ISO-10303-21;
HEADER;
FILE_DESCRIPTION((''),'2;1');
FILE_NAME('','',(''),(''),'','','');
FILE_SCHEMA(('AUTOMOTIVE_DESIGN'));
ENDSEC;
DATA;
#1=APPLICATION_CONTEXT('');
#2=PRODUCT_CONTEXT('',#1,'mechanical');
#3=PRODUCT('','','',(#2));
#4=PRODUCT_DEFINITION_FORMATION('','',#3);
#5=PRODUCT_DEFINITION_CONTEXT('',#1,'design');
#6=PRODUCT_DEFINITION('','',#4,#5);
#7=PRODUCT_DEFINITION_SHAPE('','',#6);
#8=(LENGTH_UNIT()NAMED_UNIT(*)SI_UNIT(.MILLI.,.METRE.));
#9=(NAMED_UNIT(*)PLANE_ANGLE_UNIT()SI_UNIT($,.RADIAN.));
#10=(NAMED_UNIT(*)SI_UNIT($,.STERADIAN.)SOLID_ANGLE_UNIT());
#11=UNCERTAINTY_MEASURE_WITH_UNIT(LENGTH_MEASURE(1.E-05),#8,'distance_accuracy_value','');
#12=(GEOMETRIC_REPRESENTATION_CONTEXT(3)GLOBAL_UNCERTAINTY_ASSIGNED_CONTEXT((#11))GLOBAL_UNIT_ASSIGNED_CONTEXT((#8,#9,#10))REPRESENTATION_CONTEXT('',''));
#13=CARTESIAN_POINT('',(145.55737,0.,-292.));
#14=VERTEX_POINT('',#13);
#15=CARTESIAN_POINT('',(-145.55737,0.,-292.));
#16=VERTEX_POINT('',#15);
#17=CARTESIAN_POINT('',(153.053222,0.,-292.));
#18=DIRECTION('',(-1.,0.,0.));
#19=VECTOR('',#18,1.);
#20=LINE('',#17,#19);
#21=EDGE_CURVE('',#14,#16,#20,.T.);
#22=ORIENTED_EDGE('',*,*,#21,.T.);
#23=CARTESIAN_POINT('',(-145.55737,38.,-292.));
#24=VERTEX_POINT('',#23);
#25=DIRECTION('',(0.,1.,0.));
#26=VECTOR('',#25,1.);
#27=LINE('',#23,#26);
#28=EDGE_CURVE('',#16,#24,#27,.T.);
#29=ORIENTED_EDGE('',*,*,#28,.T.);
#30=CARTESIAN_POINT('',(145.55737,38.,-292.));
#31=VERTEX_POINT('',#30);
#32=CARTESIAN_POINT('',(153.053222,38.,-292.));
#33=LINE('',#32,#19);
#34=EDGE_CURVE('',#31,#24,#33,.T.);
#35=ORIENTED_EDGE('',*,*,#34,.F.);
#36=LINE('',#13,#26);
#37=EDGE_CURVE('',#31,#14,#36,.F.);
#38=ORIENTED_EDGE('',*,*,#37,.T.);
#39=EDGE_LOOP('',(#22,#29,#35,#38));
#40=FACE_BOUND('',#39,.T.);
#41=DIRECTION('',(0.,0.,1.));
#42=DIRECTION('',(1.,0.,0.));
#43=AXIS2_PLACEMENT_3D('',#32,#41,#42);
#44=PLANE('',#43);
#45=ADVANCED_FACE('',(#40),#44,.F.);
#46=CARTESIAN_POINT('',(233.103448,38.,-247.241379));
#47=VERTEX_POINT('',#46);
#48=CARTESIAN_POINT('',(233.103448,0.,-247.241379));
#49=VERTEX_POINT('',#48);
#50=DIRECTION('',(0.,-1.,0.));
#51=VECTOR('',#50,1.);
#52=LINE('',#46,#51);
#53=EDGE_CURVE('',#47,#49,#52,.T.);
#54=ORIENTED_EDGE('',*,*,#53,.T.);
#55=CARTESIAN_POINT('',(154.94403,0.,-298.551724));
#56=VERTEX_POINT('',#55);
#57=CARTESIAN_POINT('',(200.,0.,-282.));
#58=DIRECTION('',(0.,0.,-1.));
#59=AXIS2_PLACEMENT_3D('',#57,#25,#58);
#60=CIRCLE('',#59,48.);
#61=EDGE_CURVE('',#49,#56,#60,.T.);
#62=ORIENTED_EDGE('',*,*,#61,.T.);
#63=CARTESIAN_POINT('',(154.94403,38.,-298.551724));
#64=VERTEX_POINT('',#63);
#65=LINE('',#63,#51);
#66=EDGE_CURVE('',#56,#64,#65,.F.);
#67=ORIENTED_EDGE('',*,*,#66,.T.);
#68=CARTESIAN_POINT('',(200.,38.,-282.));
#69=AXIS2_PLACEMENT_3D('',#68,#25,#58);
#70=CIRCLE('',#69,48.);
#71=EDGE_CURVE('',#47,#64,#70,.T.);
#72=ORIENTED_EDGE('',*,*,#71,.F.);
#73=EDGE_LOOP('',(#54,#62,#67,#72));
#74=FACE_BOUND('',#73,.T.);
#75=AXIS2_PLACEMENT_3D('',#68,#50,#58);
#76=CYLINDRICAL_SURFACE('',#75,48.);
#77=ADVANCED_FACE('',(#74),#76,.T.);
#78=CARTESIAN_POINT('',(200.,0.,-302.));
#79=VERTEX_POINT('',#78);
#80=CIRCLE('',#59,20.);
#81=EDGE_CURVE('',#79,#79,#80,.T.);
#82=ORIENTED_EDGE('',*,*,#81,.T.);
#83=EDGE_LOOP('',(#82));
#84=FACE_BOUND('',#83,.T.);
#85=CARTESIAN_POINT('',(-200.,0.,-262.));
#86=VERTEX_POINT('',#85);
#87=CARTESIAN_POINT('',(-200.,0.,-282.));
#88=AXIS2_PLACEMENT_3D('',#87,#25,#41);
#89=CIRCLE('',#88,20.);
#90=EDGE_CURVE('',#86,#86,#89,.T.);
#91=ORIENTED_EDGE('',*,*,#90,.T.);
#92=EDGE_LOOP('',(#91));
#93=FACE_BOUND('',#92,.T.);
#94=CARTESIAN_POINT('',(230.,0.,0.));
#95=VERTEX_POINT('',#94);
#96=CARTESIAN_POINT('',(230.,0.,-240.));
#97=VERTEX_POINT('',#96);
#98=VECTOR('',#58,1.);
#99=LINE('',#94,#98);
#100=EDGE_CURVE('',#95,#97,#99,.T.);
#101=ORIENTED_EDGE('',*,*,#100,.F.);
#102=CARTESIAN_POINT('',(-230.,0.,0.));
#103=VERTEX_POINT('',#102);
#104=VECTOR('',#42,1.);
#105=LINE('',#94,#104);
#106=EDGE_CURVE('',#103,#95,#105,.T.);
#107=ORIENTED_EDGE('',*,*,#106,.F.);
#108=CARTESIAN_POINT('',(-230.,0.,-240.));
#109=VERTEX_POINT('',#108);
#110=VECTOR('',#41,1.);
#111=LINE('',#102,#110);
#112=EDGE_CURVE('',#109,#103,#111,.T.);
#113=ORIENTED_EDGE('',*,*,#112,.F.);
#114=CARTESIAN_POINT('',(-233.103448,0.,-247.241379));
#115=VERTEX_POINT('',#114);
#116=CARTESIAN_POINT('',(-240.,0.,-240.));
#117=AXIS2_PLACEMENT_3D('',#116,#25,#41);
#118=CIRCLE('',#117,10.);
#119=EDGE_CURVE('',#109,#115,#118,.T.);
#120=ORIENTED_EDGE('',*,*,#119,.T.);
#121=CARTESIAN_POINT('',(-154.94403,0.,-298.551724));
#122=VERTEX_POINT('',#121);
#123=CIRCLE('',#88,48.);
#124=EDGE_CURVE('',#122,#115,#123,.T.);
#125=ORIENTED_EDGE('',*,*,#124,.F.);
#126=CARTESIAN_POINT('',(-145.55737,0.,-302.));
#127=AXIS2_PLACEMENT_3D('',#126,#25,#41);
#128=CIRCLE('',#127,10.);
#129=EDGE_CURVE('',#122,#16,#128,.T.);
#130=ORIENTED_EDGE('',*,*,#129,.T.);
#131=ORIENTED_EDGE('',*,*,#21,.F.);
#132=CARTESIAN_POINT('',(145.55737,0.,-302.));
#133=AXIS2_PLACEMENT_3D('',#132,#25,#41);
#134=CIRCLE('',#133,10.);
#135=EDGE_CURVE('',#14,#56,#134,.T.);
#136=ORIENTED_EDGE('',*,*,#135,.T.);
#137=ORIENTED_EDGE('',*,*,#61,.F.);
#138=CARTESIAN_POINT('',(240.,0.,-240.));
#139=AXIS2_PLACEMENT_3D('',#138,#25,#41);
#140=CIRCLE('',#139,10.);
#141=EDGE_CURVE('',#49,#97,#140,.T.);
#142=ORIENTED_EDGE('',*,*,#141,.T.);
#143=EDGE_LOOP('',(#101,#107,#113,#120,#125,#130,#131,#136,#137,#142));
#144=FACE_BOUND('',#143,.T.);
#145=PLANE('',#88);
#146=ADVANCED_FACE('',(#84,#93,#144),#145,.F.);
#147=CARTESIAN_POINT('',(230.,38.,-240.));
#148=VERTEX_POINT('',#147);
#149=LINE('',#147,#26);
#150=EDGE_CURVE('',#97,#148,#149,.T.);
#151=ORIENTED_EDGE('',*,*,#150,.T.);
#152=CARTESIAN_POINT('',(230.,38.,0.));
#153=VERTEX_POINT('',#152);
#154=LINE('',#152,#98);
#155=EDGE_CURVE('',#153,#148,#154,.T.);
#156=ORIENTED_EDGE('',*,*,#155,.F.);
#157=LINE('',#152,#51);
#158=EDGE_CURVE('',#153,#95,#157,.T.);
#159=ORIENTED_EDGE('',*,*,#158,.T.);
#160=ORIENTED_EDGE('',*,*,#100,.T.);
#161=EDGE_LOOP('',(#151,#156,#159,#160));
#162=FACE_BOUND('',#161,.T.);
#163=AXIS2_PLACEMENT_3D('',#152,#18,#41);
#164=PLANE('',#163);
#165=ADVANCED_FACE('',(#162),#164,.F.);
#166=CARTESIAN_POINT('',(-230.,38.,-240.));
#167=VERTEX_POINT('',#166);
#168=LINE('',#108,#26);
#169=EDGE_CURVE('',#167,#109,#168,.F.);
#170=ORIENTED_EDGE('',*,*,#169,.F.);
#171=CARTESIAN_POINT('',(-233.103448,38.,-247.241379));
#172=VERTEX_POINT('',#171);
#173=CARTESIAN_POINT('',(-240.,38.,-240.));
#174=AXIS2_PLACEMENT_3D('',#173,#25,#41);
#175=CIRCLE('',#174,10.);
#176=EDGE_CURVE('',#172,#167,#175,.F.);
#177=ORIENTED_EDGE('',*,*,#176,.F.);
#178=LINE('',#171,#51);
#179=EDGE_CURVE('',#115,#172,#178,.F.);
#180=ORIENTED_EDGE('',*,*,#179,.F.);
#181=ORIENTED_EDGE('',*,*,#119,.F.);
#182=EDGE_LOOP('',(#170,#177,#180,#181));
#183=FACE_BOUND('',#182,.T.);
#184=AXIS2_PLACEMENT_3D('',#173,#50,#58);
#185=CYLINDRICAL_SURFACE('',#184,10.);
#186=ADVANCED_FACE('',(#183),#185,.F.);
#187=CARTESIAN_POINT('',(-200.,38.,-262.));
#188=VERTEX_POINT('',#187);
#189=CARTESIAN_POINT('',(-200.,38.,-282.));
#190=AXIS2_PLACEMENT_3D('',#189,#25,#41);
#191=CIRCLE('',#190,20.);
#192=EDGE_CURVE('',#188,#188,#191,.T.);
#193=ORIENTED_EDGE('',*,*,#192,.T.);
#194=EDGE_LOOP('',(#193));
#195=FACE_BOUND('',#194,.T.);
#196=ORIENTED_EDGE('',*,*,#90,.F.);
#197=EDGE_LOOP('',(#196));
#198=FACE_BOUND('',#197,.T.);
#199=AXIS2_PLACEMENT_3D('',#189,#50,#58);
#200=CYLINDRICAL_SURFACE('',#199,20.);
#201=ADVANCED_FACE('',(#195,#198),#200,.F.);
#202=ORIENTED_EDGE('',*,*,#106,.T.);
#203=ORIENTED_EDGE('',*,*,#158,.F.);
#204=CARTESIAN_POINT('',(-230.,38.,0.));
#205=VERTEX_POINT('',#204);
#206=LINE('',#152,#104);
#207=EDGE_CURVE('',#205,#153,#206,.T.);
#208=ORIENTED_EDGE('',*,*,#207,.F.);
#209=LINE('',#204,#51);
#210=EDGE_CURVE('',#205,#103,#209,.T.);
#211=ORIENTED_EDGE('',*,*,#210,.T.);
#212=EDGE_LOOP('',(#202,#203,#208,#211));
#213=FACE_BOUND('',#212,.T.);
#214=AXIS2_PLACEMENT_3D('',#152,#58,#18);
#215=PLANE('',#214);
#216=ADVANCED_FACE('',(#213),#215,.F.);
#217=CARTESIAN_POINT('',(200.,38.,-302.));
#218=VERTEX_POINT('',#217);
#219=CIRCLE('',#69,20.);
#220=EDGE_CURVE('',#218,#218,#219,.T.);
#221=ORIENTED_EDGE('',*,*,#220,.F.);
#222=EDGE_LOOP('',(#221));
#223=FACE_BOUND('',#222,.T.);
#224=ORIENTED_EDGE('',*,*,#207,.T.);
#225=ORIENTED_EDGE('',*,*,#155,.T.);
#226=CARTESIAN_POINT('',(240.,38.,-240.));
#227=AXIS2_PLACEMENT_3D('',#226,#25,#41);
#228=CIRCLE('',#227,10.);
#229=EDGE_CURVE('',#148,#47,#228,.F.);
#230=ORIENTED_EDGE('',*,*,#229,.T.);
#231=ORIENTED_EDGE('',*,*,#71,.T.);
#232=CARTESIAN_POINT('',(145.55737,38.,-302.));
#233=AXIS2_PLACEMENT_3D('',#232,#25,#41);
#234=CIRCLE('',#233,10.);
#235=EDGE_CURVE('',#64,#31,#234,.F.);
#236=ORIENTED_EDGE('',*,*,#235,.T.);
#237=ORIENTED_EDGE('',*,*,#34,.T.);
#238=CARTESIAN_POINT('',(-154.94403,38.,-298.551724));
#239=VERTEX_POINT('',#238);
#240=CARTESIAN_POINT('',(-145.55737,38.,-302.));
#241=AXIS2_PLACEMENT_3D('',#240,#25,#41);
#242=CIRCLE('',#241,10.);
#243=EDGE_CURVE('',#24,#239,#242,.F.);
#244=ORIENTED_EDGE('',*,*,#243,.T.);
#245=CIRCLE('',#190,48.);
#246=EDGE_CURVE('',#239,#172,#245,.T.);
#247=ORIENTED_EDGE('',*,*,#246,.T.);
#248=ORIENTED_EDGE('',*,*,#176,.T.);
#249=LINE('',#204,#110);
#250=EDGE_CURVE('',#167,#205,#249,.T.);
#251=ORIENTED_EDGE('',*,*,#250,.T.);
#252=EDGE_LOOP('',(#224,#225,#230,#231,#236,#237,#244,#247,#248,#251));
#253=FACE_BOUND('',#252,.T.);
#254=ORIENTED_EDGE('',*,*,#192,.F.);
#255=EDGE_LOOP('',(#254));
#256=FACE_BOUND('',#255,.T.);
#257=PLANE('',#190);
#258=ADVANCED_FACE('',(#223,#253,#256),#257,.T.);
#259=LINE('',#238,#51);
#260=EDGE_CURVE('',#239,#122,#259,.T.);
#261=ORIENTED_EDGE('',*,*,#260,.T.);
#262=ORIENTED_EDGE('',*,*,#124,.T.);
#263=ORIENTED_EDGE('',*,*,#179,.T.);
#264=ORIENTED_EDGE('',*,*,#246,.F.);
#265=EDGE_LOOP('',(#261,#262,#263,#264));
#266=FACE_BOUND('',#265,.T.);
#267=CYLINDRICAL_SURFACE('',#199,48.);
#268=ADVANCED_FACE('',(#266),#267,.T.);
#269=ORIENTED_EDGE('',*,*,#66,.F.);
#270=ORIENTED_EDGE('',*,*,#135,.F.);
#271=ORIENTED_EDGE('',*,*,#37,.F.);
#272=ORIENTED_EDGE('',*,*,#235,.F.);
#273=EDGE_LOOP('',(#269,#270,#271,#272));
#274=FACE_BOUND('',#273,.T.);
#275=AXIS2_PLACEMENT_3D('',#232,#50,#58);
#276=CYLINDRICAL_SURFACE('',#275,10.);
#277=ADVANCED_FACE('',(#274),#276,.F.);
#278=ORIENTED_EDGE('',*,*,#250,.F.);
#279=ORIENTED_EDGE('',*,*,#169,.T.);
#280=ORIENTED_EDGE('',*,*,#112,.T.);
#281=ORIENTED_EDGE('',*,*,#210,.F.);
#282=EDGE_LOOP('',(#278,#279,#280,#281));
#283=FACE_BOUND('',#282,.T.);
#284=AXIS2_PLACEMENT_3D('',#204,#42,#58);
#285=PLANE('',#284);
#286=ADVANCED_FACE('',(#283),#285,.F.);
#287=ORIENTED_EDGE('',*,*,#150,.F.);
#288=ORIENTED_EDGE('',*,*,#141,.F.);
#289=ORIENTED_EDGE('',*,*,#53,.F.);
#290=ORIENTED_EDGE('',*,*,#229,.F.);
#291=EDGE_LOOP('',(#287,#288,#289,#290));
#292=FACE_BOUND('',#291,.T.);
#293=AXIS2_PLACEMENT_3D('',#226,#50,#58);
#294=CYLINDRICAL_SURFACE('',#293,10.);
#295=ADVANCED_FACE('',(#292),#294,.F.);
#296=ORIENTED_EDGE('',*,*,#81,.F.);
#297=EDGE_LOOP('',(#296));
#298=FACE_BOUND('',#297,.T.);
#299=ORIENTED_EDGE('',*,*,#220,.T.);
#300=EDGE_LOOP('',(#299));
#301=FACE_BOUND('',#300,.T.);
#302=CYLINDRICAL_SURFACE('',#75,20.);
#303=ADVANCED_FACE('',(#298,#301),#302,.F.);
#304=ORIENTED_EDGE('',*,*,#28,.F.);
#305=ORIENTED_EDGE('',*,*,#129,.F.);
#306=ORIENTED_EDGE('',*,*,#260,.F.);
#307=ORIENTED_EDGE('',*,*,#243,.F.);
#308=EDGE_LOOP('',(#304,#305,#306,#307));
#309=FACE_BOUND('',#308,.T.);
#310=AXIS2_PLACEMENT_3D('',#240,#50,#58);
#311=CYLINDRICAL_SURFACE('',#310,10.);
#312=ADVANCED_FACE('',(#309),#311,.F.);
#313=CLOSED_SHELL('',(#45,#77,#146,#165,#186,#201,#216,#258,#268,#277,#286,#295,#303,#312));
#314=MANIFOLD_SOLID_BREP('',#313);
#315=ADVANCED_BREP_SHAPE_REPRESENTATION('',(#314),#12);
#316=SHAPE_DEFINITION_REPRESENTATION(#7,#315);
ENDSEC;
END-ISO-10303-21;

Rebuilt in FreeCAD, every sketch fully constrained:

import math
import FreeCAD as App
import Part
import Sketcher
Q = App.Units.Quantity


def edges_at(feature, points):
    """Names of the edges that pass closest to the given points."""
    edges = feature.Shape.Edges
    near = lambda p: min(range(len(edges)), key=lambda i: edges[i].distToShape(Part.Vertex(*p))[0])
    return sorted({f"Edge{near(p) + 1}" for p in points})

doc = App.newDocument("Part")
body = doc.addObject("PartDesign::Body", "Body")

sketch1 = body.newObject("Sketcher::SketchObject", "Sketch")
sketch1.AttachmentSupport = (doc.getObject("XZ_Plane"), [""])
sketch1.MapMode = "FlatFace"
sketch1.addGeometry([
    Part.LineSegment(App.Vector(-230, 0, 0), App.Vector(230, 0, 0)),
    Part.LineSegment(App.Vector(230, 0, 0), App.Vector(230, -245, 0)),
    Part.ArcOfCircle(Part.Circle(App.Vector(200, -282, 0), App.Vector(0, 0, 1), 48), math.radians(-168), math.radians(51)),
    Part.LineSegment(App.Vector(153, -292, 0), App.Vector(-153, -292, 0)),
    Part.ArcOfCircle(Part.Circle(App.Vector(-200, -282, 0), App.Vector(0, 0, 1), 48), math.radians(129), math.radians(348)),
    Part.LineSegment(App.Vector(-230, -245, 0), App.Vector(-230, 0, 0)),
    Part.Circle(App.Vector(200, -282, 0), App.Vector(0, 0, 1), 20),
    Part.Circle(App.Vector(-200, -282, 0), App.Vector(0, 0, 1), 20),
], False)
sketch1.addConstraint([
    Sketcher.Constraint("Coincident", 0, 2, 1, 1),
    Sketcher.Constraint("Coincident", 1, 2, 2, 2),
    Sketcher.Constraint("Coincident", 2, 1, 3, 1),
    Sketcher.Constraint("Coincident", 3, 2, 4, 2),
    Sketcher.Constraint("Coincident", 4, 1, 5, 1),
    Sketcher.Constraint("Coincident", 5, 2, 0, 1),
    Sketcher.Constraint("Horizontal", 0),
    Sketcher.Constraint("Vertical", 1),
    Sketcher.Constraint("Horizontal", 3),
    Sketcher.Constraint("Vertical", 5),
    Sketcher.Constraint("Coincident", 6, 3, 2, 3),
    Sketcher.Constraint("Coincident", 7, 3, 4, 3),
    Sketcher.Constraint("Equal", 2, 4),
    Sketcher.Constraint("Equal", 6, 7),
    Sketcher.Constraint("Symmetric", 0, 2, 5, 2, -1, 1),
    Sketcher.Constraint("Symmetric", 2, 3, 4, 3, -2),
    Sketcher.Constraint("Diameter", 6, Q("40 mm")),
    Sketcher.Constraint("Radius", 2, Q("48 mm")),
    Sketcher.Constraint("DistanceX", 0, 1, 0, 2, Q("460 mm")),
    Sketcher.Constraint("DistanceX", -1, 1, 2, 3, Q("200 mm")),
    Sketcher.Constraint("DistanceY", 2, 3, -1, 1, Q("282 mm")),
    Sketcher.Constraint("DistanceY", 2, 1, -1, 1, Q("292 mm")),
])
pad1 = body.newObject("PartDesign::Pad", "Pad")
pad1.Profile = sketch1
pad1.Length = 38
pad1.Reversed = True
doc.recompute()

fillet = body.newObject("PartDesign::Fillet", "Fillet")
fillet.Base = (pad1, edges_at(pad1, [
    (-230, 19, -244.53),
    (-153.053, 19, -292),
    (153.053, 19, -292),
    (230, 19, -244.53),
]))
fillet.Radius = 10

doc.recompute()
